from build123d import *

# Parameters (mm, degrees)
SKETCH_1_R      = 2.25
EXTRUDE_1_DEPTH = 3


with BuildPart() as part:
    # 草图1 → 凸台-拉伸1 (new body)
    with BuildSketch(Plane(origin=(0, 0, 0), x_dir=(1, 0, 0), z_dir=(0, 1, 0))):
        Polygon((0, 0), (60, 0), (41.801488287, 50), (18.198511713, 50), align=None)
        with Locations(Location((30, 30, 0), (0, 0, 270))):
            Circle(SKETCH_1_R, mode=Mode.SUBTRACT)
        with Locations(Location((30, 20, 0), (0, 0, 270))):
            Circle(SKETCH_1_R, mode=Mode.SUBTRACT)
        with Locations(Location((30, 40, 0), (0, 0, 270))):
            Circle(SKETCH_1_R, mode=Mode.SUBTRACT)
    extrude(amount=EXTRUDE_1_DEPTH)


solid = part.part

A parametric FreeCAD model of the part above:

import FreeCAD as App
import Part
import Sketcher
from FreeCAD import Vector
Q = App.Units.Quantity


def add_polygon(sketch, points):
    """Adds a closed chain of lines whose ends are joined by coincident constraints."""
    first, n = sketch.GeometryCount, len(points)
    for a, b in zip(points, points[1:] + points[:1]):
        sketch.addGeometry(Part.LineSegment(App.Vector(*a, 0), App.Vector(*b, 0)), False)
    for i in range(n):
        sketch.addConstraint(Sketcher.Constraint("Coincident", first + i, 2, first + (i + 1) % n, 1))

doc = App.newDocument("Part")
params = doc.addObject("Spreadsheet::Sheet", "Params")
for row, (alias, value) in enumerate([
    ("sketch1_diameter", "4.5 mm"),
    ("sketch1_width", "60 mm"),
    ("pad1_length", "3 mm"),
], start=1):
    params.set(f"A{row}", alias)
    params.set(f"B{row}", "=" + value)
    params.setAlias(f"B{row}", alias)

body = doc.addObject("PartDesign::Body", "Body")

# Sketch on XZ plane
sketch1 = body.newObject("Sketcher::SketchObject", "Sketch")
sketch1.AttachmentSupport = (doc.getObject("XZ_Plane"), [""])
sketch1.MapMode = "FlatFace"
add_polygon(sketch1, [(0, 0), (60, 0), (41.8, -50), (18.2, -50)])  # lines 0-3
sketch1.addGeometry(Part.Circle(Vector(30, -20, 0), Vector(0, 0, 1), 2.2), False)  # 4
sketch1.addGeometry(Part.Circle(Vector(30, -30, 0), Vector(0, 0, 1), 2.2), False)  # 5
sketch1.addGeometry(Part.Circle(Vector(30, -40, 0), Vector(0, 0, 1), 2.2), False)  # 6
sketch1.addConstraint(Sketcher.Constraint("Horizontal", 0))
sketch1.addConstraint(Sketcher.Constraint("Horizontal", 2))
sketch1.addConstraint(Sketcher.Constraint("Coincident", 3, 2, -1, 1))
sketch1.addConstraint(Sketcher.Constraint("Equal", 4, 5))
sketch1.addConstraint(Sketcher.Constraint("Equal", 5, 6))
sketch1.addConstraint(Sketcher.Constraint("Vertical", 4, 3, 5, 3))
sketch1.addConstraint(Sketcher.Constraint("Vertical", 5, 3, 6, 3))
sketch1.addConstraint(Sketcher.Constraint("Equal", 1, 3))
sketch1.addConstraint(Sketcher.Constraint("Diameter", 4, 4.5))
sketch1.addConstraint(Sketcher.Constraint("DistanceX", 0, 1, 0, 2, 60.0))
sketch1.addConstraint(Sketcher.Constraint("Angle", 1, Q("-110 deg")))
sketch1.addConstraint(Sketcher.Constraint("DistanceX", -1, 1, 4, 3, 30.0))
sketch1.addConstraint(Sketcher.Constraint("DistanceY", 4, 3, -1, 1, 20.0))
sketch1.addConstraint(Sketcher.Constraint("DistanceY", 5, 3, -1, 1, 30.0))
sketch1.addConstraint(Sketcher.Constraint("DistanceY", 6, 3, -1, 1, 40.0))
sketch1.addConstraint(Sketcher.Constraint("DistanceY", 1, 2, -1, 1, 50.0))
sketch1.setExpression("Constraints[12]", "Params.sketch1_diameter")
sketch1.setExpression("Constraints[13]", "Params.sketch1_width")
pad1 = body.newObject("PartDesign::Pad", "Pad")
pad1.Profile = sketch1
pad1.setExpression("Length", "Params.pad1_length")
pad1.Reversed = True

doc.recompute()
